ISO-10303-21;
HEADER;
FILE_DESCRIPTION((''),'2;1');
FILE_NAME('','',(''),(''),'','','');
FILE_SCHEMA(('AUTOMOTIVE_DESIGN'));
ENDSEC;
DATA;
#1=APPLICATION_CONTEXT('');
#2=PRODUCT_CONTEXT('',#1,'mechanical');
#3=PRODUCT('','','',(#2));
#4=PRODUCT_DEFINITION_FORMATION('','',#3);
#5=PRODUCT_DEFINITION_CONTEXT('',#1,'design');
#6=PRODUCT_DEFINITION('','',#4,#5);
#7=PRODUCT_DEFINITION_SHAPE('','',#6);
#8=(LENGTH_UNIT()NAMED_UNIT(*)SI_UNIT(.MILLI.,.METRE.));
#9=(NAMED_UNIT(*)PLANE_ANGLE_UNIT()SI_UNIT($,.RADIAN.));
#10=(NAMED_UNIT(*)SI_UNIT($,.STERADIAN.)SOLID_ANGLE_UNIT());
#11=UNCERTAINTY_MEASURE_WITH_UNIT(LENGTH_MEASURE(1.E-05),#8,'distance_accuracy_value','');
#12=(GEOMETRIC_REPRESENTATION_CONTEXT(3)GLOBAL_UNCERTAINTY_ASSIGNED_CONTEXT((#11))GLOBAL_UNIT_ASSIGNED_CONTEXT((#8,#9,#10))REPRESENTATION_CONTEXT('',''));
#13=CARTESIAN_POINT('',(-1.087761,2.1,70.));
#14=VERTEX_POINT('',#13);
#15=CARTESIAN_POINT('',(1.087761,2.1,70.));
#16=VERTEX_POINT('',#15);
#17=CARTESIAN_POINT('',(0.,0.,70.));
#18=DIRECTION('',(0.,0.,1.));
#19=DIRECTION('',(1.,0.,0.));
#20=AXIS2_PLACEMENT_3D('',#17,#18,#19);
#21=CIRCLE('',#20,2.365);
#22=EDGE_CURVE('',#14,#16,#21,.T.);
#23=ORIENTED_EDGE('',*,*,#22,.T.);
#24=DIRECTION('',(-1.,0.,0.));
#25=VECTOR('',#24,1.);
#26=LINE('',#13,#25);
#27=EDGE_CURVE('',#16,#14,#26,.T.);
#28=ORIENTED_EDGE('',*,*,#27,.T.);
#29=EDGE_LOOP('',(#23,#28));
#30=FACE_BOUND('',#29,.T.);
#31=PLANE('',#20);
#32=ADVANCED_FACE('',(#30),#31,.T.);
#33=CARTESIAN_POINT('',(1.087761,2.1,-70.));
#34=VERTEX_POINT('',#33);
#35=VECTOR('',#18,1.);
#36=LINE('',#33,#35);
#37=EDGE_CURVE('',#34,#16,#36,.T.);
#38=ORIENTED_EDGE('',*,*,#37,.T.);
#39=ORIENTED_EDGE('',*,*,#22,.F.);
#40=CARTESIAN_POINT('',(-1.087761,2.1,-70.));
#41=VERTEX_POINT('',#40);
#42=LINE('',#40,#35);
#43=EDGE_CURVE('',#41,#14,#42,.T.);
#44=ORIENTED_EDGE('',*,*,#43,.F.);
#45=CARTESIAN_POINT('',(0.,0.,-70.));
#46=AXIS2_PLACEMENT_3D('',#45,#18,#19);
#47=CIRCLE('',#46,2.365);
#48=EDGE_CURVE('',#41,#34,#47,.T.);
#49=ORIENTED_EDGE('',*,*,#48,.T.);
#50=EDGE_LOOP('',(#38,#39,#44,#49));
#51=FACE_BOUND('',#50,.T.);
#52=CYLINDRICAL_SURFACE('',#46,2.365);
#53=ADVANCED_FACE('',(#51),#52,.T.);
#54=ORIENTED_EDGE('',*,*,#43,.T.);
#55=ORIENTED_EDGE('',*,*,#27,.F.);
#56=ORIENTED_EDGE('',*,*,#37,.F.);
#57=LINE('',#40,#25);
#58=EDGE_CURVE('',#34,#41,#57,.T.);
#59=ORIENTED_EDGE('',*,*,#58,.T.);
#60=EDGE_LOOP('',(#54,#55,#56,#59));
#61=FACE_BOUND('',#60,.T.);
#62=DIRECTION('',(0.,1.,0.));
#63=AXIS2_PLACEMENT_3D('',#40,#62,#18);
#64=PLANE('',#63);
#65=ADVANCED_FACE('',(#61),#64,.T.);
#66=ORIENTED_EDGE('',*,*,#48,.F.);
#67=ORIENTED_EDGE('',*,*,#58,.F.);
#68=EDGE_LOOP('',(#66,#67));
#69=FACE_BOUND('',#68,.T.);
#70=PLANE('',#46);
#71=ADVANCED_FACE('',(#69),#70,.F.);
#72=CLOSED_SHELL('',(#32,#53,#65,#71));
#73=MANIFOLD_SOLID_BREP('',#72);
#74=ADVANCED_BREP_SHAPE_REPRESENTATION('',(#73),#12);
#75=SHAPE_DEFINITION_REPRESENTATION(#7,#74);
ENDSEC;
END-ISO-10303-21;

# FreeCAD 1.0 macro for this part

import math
import FreeCAD as App
import Part
import Sketcher

V = App.Vector
Q = App.Units.Quantity

doc = App.newDocument("Part")
params = doc.addObject("Spreadsheet::Sheet", "Params")
for row, (alias, value) in enumerate([
    ("pad1_length", "140 mm"),
], start=1):
    params.set(f"A{row}", alias)
    params.set(f"B{row}", "=" + value)
    params.setAlias(f"B{row}", alias)

body = doc.addObject("PartDesign::Body", "Body")

# Sketch on XY plane
sketch1 = body.newObject("Sketcher::SketchObject", "Sketch")
sketch1.AttachmentSupport = (doc.getObject("XY_Plane"), [""])
sketch1.MapMode = "FlatFace"
sketch1.addGeometry(Part.LineSegment(V(1.1, 2.1, 0), V(-1.1, 2.1, 0)), False)
sketch1.addGeometry(Part.ArcOfCircle(Part.Circle(V(0, 0, 0), V(0, 0, 1), 2.4), math.radians(117), math.radians(423)), False)
sketch1.addConstraint(Sketcher.Constraint("Coincident", 0, 1, 1, 2))
sketch1.addConstraint(Sketcher.Constraint("Coincident", 1, 1, 0, 2))
sketch1.addConstraint(Sketcher.Constraint("Horizontal", 0))
sketch1.addConstraint(Sketcher.Constraint("Coincident", 1, 3, -1, 1))
sketch1.addConstraint(Sketcher.Constraint("Radius", 1, Q("2.365 mm")))
sketch1.addConstraint(Sketcher.Constraint("DistanceY", -1, 1, 0, 1, Q("2.1 mm")))
pad1 = body.newObject("PartDesign::Pad", "Pad")
pad1.Profile = sketch1
pad1.setExpression("Length", "Params.pad1_length")
pad1.Midplane = True

doc.recompute()
